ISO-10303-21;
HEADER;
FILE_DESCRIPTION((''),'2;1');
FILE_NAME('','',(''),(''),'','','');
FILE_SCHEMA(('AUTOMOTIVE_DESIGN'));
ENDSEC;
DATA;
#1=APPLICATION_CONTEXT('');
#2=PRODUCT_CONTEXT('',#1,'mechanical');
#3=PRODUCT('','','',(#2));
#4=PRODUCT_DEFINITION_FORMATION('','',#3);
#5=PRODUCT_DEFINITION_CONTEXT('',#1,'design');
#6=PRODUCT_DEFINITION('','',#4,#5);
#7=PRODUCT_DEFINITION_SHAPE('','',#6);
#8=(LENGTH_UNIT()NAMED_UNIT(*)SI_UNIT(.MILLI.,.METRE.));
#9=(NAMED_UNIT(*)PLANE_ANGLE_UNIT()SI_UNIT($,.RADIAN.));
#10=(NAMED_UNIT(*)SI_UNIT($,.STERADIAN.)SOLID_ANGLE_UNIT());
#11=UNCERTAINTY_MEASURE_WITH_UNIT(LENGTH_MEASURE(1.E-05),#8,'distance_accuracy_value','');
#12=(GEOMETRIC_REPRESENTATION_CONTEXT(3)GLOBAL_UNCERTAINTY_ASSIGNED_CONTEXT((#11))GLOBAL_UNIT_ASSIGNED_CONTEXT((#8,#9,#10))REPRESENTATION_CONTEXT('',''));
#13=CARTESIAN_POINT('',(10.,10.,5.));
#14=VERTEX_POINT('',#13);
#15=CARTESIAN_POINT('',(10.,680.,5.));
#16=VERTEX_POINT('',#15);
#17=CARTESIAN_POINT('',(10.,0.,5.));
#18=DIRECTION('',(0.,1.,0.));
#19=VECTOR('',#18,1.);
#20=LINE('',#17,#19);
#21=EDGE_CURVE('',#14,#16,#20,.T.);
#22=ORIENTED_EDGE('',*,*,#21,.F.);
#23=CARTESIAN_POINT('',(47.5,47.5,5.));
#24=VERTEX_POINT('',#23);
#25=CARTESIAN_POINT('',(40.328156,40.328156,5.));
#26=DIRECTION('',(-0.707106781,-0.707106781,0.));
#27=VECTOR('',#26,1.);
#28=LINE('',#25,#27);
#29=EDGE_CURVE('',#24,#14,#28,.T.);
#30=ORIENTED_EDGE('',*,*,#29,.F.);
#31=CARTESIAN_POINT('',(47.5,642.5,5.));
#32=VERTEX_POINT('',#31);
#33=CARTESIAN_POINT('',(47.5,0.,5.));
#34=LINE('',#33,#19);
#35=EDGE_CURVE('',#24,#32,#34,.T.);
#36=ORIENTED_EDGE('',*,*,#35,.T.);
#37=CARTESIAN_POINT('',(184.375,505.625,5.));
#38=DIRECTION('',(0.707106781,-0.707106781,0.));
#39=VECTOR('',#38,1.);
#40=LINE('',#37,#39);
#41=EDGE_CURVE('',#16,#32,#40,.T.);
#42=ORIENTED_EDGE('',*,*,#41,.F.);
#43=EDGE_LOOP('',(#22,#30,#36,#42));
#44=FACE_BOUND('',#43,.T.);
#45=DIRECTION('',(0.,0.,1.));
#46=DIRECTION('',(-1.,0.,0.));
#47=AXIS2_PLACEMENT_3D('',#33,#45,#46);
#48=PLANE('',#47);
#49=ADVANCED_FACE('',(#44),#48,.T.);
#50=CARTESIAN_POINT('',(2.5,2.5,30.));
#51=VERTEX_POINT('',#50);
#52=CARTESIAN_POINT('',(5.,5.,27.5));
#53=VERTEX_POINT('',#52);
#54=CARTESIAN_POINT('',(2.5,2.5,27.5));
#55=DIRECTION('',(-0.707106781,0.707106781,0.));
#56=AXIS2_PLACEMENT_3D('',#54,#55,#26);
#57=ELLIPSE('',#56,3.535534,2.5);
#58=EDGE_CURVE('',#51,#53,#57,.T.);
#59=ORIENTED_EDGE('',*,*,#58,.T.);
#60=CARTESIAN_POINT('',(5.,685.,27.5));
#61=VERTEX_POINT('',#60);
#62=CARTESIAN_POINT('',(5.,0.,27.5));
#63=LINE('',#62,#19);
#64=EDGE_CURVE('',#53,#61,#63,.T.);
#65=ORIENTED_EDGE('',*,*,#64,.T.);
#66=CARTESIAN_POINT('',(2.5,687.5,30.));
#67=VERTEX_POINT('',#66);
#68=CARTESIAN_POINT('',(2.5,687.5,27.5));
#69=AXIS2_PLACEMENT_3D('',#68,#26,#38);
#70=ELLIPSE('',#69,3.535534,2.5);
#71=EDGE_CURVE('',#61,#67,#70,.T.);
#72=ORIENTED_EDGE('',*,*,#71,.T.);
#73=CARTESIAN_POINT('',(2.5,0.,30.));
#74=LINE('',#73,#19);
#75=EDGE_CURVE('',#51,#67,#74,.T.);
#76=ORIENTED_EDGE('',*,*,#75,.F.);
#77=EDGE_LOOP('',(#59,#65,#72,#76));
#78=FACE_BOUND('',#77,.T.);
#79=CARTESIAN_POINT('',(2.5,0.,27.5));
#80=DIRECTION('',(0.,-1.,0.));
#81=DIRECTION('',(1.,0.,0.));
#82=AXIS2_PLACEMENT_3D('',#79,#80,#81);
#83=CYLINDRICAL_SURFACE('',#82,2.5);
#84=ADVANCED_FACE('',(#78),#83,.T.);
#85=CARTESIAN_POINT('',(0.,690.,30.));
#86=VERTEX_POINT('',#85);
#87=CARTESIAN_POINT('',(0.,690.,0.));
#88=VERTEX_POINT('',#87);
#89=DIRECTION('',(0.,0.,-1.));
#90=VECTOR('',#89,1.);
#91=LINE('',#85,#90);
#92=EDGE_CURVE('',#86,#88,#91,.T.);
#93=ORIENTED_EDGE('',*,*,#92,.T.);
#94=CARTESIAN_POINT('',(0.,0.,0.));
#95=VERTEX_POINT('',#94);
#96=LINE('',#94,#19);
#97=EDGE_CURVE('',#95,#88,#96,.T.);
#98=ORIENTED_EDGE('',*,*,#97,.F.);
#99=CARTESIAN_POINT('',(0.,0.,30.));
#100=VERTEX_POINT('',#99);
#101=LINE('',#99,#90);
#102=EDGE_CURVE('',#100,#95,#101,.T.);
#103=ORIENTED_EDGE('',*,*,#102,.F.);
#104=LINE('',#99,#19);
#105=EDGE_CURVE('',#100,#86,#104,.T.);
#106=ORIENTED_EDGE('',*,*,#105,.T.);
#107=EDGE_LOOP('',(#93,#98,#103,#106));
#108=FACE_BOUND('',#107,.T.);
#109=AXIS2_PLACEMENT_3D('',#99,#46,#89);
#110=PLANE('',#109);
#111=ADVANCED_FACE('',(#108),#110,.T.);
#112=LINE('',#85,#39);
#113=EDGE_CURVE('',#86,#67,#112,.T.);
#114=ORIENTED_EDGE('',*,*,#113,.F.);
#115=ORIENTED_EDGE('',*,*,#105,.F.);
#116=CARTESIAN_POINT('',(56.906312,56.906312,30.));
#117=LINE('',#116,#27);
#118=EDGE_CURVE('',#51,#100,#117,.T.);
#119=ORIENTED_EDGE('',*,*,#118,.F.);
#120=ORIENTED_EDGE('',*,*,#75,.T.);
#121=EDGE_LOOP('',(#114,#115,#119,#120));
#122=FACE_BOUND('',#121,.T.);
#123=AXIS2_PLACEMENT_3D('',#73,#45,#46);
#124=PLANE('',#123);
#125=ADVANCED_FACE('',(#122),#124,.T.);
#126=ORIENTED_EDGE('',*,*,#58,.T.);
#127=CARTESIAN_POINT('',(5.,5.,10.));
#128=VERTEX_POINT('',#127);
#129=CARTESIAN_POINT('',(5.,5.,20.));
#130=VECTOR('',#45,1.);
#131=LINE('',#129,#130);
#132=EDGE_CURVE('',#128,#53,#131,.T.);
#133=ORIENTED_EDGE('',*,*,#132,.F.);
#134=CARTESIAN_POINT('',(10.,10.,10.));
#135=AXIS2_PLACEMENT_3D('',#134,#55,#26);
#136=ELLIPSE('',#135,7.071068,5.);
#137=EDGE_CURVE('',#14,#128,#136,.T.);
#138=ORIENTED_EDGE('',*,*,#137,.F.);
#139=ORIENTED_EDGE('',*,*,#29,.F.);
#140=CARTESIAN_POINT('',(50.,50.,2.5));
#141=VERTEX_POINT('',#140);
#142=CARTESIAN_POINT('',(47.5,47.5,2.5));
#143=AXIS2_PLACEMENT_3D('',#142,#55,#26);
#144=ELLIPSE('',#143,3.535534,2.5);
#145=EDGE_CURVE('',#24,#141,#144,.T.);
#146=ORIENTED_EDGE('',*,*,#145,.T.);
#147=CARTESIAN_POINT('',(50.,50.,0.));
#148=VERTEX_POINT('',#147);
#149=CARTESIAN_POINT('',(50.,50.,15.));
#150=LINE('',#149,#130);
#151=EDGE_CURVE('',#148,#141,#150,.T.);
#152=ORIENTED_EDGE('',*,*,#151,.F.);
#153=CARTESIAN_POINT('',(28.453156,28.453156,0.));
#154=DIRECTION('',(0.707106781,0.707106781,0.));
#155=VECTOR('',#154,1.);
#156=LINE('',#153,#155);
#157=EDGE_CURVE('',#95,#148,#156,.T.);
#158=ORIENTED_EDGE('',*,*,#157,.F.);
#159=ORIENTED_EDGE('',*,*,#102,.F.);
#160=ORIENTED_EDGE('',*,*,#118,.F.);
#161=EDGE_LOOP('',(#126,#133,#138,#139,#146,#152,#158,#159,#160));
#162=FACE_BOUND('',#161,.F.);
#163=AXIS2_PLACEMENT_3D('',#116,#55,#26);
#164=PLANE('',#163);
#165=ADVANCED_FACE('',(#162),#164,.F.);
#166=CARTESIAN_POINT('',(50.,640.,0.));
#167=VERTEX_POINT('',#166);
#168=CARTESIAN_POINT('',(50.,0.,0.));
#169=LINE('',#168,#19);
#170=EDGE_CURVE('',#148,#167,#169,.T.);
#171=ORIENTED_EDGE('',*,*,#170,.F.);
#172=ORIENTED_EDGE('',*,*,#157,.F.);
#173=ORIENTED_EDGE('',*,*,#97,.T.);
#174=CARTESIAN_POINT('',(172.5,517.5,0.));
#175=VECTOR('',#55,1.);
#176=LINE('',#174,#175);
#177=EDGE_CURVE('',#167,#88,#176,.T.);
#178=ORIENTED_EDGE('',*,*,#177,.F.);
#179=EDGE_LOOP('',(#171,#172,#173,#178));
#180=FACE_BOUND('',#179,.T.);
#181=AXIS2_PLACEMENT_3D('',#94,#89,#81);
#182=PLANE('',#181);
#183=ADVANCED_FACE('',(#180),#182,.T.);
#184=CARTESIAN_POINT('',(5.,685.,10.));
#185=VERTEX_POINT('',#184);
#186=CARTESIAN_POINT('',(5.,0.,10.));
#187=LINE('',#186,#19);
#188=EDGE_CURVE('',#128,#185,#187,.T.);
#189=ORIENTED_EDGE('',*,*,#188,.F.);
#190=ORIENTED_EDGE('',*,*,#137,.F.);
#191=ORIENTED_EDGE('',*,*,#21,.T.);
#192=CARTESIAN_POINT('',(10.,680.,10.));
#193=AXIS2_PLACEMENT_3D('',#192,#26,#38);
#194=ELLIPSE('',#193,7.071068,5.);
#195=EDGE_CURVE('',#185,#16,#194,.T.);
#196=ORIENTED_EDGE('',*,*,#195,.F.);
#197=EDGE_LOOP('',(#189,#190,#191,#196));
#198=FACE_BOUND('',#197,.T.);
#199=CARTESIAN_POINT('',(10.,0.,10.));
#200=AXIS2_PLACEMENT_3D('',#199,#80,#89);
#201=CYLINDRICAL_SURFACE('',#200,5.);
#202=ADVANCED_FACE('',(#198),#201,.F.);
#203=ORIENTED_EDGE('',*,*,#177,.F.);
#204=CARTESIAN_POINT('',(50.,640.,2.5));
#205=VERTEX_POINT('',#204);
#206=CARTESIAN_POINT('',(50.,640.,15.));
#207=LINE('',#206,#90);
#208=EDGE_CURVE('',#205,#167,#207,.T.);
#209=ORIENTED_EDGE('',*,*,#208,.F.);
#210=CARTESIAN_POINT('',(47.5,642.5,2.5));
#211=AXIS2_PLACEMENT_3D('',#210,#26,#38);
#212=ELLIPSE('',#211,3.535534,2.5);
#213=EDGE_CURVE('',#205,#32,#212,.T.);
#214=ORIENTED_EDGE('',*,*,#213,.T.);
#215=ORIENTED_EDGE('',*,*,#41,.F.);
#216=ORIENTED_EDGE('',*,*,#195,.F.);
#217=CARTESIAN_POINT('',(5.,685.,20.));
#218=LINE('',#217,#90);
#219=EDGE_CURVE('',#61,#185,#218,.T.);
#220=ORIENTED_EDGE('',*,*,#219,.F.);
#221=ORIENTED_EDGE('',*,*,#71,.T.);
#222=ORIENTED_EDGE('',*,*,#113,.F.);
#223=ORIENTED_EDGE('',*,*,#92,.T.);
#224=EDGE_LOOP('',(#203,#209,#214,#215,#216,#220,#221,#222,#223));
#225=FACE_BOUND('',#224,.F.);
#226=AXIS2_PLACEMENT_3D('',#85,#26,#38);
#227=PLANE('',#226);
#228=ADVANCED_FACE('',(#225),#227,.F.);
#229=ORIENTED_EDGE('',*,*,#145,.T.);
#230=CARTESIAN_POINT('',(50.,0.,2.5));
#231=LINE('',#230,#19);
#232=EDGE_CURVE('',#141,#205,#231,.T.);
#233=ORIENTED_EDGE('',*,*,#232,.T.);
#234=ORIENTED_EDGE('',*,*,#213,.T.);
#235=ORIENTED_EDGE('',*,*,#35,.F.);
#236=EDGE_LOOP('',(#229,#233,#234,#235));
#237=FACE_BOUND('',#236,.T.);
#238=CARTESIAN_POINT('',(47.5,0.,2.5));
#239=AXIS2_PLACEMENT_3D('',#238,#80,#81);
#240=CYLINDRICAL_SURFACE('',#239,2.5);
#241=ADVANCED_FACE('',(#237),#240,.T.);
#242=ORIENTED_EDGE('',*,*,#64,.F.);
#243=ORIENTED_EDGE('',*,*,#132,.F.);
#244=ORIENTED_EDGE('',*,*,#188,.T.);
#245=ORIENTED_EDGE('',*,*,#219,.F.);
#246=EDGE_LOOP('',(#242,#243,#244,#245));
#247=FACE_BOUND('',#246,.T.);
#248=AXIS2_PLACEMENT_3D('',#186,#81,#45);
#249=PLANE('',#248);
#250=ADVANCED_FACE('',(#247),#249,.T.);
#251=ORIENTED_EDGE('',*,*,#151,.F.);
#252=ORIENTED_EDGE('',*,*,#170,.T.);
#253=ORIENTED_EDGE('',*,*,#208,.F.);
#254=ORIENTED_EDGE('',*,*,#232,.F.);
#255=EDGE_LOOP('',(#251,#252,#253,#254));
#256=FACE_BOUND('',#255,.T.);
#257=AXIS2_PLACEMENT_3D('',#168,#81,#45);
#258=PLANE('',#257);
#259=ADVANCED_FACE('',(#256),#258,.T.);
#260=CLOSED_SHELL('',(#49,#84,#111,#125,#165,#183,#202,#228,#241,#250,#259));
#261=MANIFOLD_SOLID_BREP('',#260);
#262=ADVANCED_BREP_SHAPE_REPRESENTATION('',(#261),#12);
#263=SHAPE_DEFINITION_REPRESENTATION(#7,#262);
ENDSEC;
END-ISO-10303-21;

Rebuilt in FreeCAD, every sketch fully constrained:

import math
import FreeCAD as App
import Part
import Sketcher
from FreeCAD import Vector


def add_polygon(sketch, points):
    """Adds a closed chain of lines whose ends are joined by coincident constraints."""
    first, n = sketch.GeometryCount, len(points)
    for a, b in zip(points, points[1:] + points[:1]):
        sketch.addGeometry(Part.LineSegment(App.Vector(*a, 0), App.Vector(*b, 0)), False)
    for i in range(n):
        sketch.addConstraint(Sketcher.Constraint("Coincident", first + i, 2, first + (i + 1) % n, 1))

doc = App.newDocument("Part")
body = doc.addObject("PartDesign::Body", "Body")

# Sketch on XZ plane
sketch1 = doc.addObject("Sketcher::SketchObject", "Sketch")
body.addObject(sketch1)
sketch1.AttachmentSupport = (doc.XZ_Plane, [""])
sketch1.MapMode = "FlatFace"
sketch1.addGeometry(Part.LineSegment(Vector(0, 0, 0), Vector(50, 0, 0)), False)
sketch1.addGeometry(Part.LineSegment(Vector(50, 0, 0), Vector(50, 2.5, 0)), False)
sketch1.addGeometry(Part.ArcOfCircle(Part.Circle(Vector(47.5, 2.5, 0), Vector(0, 0, 1), 2.5), math.radians(0), math.radians(90)), False)
sketch1.addGeometry(Part.LineSegment(Vector(47.5, 5, 0), Vector(10, 5, 0)), False)
sketch1.addGeometry(Part.ArcOfCircle(Part.Circle(Vector(10, 10, 0), Vector(0, 0, 1), 5), math.radians(180), math.radians(270)), False)
sketch1.addGeometry(Part.LineSegment(Vector(5, 10, 0), Vector(5, 27.5, 0)), False)
sketch1.addGeometry(Part.ArcOfCircle(Part.Circle(Vector(2.5, 27.5, 0), Vector(0, 0, 1), 2.5), math.radians(0), math.radians(90)), False)
sketch1.addGeometry(Part.LineSegment(Vector(2.5, 30, 0), Vector(0, 30, 0)), False)
sketch1.addGeometry(Part.LineSegment(Vector(0, 30, 0), Vector(0, 0, 0)), False)
sketch1.addConstraint(Sketcher.Constraint("Coincident", 0, 2, 1, 1))
sketch1.addConstraint(Sketcher.Constraint("Tangent", 1, 2, 2, 1))
sketch1.addConstraint(Sketcher.Constraint("Tangent", 2, 2, 3, 1))
sketch1.addConstraint(Sketcher.Constraint("Tangent", 3, 2, 4, 2))
sketch1.addConstraint(Sketcher.Constraint("Tangent", 4, 1, 5, 1))
sketch1.addConstraint(Sketcher.Constraint("Tangent", 5, 2, 6, 1))
sketch1.addConstraint(Sketcher.Constraint("Tangent", 6, 2, 7, 1))
sketch1.addConstraint(Sketcher.Constraint("Coincident", 7, 2, 8, 1))
sketch1.addConstraint(Sketcher.Constraint("Coincident", 8, 2, 0, 1))
sketch1.addConstraint(Sketcher.Constraint("Horizontal", 0))
sketch1.addConstraint(Sketcher.Constraint("Vertical", 1))
sketch1.addConstraint(Sketcher.Constraint("Horizontal", 3))
sketch1.addConstraint(Sketcher.Constraint("Vertical", 5))
sketch1.addConstraint(Sketcher.Constraint("Horizontal", 7))
sketch1.addConstraint(Sketcher.Constraint("Vertical", 8))
sketch1.addConstraint(Sketcher.Constraint("Coincident", 8, 2, -1, 1))
sketch1.addConstraint(Sketcher.Constraint("Equal", 2, 6))
sketch1.addConstraint(Sketcher.Constraint("Equal", 7, 1))
sketch1.addConstraint(Sketcher.Constraint("Radius", 4, 5.0))
sketch1.addConstraint(Sketcher.Constraint("Radius", 2, 2.5))
sketch1.addConstraint(Sketcher.Constraint("DistanceX", 0, 1, 0, 2, 50.0))
sketch1.addConstraint(Sketcher.Constraint("DistanceY", 8, 2, 8, 1, 30.0))
sketch1.addConstraint(Sketcher.Constraint("DistanceX", 3, 2, 3, 1, 37.5))
pad1 = doc.addObject("PartDesign::Pad", "Pad")
body.addObject(pad1)
pad1.Profile = sketch1
pad1.Length = 690
pad1.Reversed = True

# Sketch on XY plane
sketch2 = doc.addObject("Sketcher::SketchObject", "Sketch001")
body.addObject(sketch2)
sketch2.AttachmentSupport = (doc.XY_Plane, [""])
sketch2.MapMode = "FlatFace"
sketch2.AttachmentOffset = App.Placement(Vector(0, 0, 30), App.Rotation())
add_polygon(sketch2, [(57, 0), (57, 57), (0, 0)])  # lines 0-2
add_polygon(sketch2, [(57, 633), (57, 690), (0, 690)])  # lines 3-5
sketch2.addConstraint(Sketcher.Constraint("Vertical", 0))
sketch2.addConstraint(Sketcher.Constraint("Horizontal", 2))
sketch2.addConstraint(Sketcher.Constraint("Vertical", 3))
sketch2.addConstraint(Sketcher.Constraint("Horizontal", 4))
sketch2.addConstraint(Sketcher.Constraint("Coincident", 1, 2, -1, 1))
sketch2.addConstraint(Sketcher.Constraint("PointOnObject", 4, 2, -2))
sketch2.addConstraint(Sketcher.Constraint("Perpendicular", 1, 5))
sketch2.addConstraint(Sketcher.Constraint("Vertical", 2, 2, 3, 2))
sketch2.addConstraint(Sketcher.Constraint("Equal", 4, 0))
sketch2.addConstraint(Sketcher.Constraint("DistanceY", -1, 1, 3, 2, 690.0))
sketch2.addConstraint(Sketcher.Constraint("DistanceX", 2, 1, 2, 2, 56.906312))
pocket1 = doc.addObject("PartDesign::Pocket", "Pocket")
body.addObject(pocket1)
pocket1.Profile = sketch2
pocket1.Type = "ThroughAll"

doc.recompute()
